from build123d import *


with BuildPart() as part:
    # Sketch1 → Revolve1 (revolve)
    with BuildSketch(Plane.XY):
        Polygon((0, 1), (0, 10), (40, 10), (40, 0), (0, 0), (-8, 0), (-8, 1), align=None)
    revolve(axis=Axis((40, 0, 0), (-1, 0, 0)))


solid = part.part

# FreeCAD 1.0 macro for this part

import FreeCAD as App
import Part
import Sketcher

V = App.Vector

doc = App.newDocument("Part")
params = doc.addObject("Spreadsheet::Sheet", "Params")
for row, (alias, value) in enumerate([
    ("sketch1_width", "8 mm"),
    ("sketch1_width2", "48 mm"),
    ("sketch1_height", "9 mm"),
    ("sketch1_height2", "1 mm"),
    ("revolution_angle", "360 deg"),
], start=1):
    params.set(f"A{row}", alias)
    params.set(f"B{row}", "=" + value)
    params.setAlias(f"B{row}", alias)

body = doc.addObject("PartDesign::Body", "Body")

sketch1 = body.newObject("Sketcher::SketchObject", "Sketch")
sketch1.AttachmentSupport = (doc.getObject("XY_Plane"), [""])
sketch1.MapMode = "FlatFace"
sketch1.addGeometry(Part.LineSegment(V(0, 10, 0), V(0, 1, 0)), False)
sketch1.addGeometry(Part.LineSegment(V(0, 1, 0), V(-8, 1, 0)), False)
sketch1.addGeometry(Part.LineSegment(V(-8, 1, 0), V(-8, 0, 0)), False)
sketch1.addGeometry(Part.LineSegment(V(-8, 0, 0), V(40, 0, 0)), False)
sketch1.addGeometry(Part.LineSegment(V(40, 0, 0), V(40, 10, 0)), False)
sketch1.addGeometry(Part.LineSegment(V(40, 10, 0), V(0, 10, 0)), False)
sketch1.addConstraint(Sketcher.Constraint("Coincident", 0, 2, 1, 1))
sketch1.addConstraint(Sketcher.Constraint("Coincident", 1, 2, 2, 1))
sketch1.addConstraint(Sketcher.Constraint("Coincident", 2, 2, 3, 1))
sketch1.addConstraint(Sketcher.Constraint("Coincident", 3, 2, 4, 1))
sketch1.addConstraint(Sketcher.Constraint("Coincident", 4, 2, 5, 1))
sketch1.addConstraint(Sketcher.Constraint("Coincident", 5, 2, 0, 1))
sketch1.addConstraint(Sketcher.Constraint("Vertical", 0))
sketch1.addConstraint(Sketcher.Constraint("Horizontal", 1))
sketch1.addConstraint(Sketcher.Constraint("Vertical", 2))
sketch1.addConstraint(Sketcher.Constraint("Horizontal", 3))
sketch1.addConstraint(Sketcher.Constraint("Vertical", 4))
sketch1.addConstraint(Sketcher.Constraint("Horizontal", 5))
sketch1.addConstraint(Sketcher.Constraint("PointOnObject", 0, 2, -2))
sketch1.addConstraint(Sketcher.Constraint("PointOnObject", 2, 2, -1))
sketch1.addConstraint(Sketcher.Constraint("DistanceX", 1, 2, 1, 1, 8.0))
sketch1.addConstraint(Sketcher.Constraint("DistanceX", 3, 1, 3, 2, 48.0))
sketch1.addConstraint(Sketcher.Constraint("DistanceY", 0, 2, 0, 1, 9.0))
sketch1.addConstraint(Sketcher.Constraint("DistanceY", 2, 2, 2, 1, 1.0))
sketch1.setExpression("Constraints[14]", "Params.sketch1_width")
sketch1.setExpression("Constraints[15]", "Params.sketch1_width2")
sketch1.setExpression("Constraints[16]", "Params.sketch1_height")
sketch1.setExpression("Constraints[17]", "Params.sketch1_height2")
revolution = body.newObject("PartDesign::Revolution", "Revolution")
revolution.Profile = sketch1
revolution.ReferenceAxis = (sketch1, ["H_Axis"])
revolution.setExpression("Angle", "Params.revolution_angle")

doc.recompute()
